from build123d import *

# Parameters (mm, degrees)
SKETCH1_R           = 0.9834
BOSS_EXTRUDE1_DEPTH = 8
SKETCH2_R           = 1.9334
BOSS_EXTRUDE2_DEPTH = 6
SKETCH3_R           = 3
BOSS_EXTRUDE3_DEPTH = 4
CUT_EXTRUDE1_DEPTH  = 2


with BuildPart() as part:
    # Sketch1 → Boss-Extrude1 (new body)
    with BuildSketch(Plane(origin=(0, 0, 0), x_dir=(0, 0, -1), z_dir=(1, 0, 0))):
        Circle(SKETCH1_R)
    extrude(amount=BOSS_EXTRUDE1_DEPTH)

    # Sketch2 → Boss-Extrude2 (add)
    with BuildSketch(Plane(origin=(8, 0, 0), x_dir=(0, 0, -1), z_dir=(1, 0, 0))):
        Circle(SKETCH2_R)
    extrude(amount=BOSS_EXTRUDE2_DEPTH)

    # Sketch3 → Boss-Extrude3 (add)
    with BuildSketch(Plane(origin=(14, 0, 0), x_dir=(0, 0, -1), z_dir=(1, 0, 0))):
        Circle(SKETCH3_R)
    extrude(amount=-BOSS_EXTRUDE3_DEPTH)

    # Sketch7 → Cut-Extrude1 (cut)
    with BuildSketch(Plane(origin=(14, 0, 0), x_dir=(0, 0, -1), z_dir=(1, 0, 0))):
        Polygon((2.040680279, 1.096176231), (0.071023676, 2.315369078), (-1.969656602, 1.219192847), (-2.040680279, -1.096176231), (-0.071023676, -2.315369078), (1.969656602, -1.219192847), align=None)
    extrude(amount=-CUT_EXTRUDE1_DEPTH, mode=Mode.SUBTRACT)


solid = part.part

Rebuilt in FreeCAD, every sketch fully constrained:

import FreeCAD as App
import Part
import Sketcher
from FreeCAD import Vector

doc = App.newDocument("Part")
body = doc.addObject("PartDesign::Body", "Body")

sketch1 = doc.addObject("Sketcher::SketchObject", "Sketch")
body.addObject(sketch1)
sketch1.AttachmentSupport = (doc.YZ_Plane, [""])
sketch1.MapMode = "FlatFace"
sketch1.addGeometry(Part.Circle(Vector(0, 0, 0), Vector(0, 0, 1), 0.9834), False)
sketch1.addConstraint(Sketcher.Constraint("Coincident", 0, 3, -1, 1))
sketch1.addConstraint(Sketcher.Constraint("Diameter", 0, 1.9668))
pad1 = doc.addObject("PartDesign::Pad", "Pad")
body.addObject(pad1)
pad1.Profile = sketch1
pad1.Length = 8

sketch2 = doc.addObject("Sketcher::SketchObject", "Sketch001")
body.addObject(sketch2)
sketch2.AttachmentSupport = (doc.YZ_Plane, [""])
sketch2.MapMode = "FlatFace"
sketch2.AttachmentOffset = App.Placement(Vector(0, 0, 8), App.Rotation())
sketch2.addGeometry(Part.Circle(Vector(0, 0, 0), Vector(0, 0, 1), 1.9334), False)
sketch2.addConstraint(Sketcher.Constraint("Coincident", 0, 3, -1, 1))
sketch2.addConstraint(Sketcher.Constraint("Diameter", 0, 3.8668))
pad2 = doc.addObject("PartDesign::Pad", "Pad001")
body.addObject(pad2)
pad2.Profile = sketch2
pad2.Length = 6

sketch3 = doc.addObject("Sketcher::SketchObject", "Sketch002")
body.addObject(sketch3)
sketch3.AttachmentSupport = (doc.YZ_Plane, [""])
sketch3.MapMode = "FlatFace"
sketch3.AttachmentOffset = App.Placement(Vector(0, 0, 14), App.Rotation())
sketch3.addGeometry(Part.Circle(Vector(0, 0, 0), Vector(0, 0, 1), 3), False)
sketch3.addConstraint(Sketcher.Constraint("Coincident", 0, 3, -1, 1))
sketch3.addConstraint(Sketcher.Constraint("Diameter", 0, 6.0))
pad3 = doc.addObject("PartDesign::Pad", "Pad002")
body.addObject(pad3)
pad3.Profile = sketch3
pad3.Length = 4
pad3.Reversed = True

sketch4 = doc.addObject("Sketcher::SketchObject", "Sketch003")
body.addObject(sketch4)
sketch4.AttachmentSupport = (doc.YZ_Plane, [""])
sketch4.MapMode = "FlatFace"
sketch4.AttachmentOffset = App.Placement(Vector(0, 0, 14), App.Rotation())
sketch4.addGeometry(Part.LineSegment(Vector(1.096176, -2.04068, 0), Vector(2.315369, -0.071024, 0)), False)
sketch4.addGeometry(Part.LineSegment(Vector(2.315369, -0.071024, 0), Vector(1.219193, 1.969657, 0)), False)
sketch4.addGeometry(Part.LineSegment(Vector(1.219193, 1.969657, 0), Vector(-1.096176, 2.04068, 0)), False)
sketch4.addGeometry(Part.LineSegment(Vector(-1.096176, 2.04068, 0), Vector(-2.315369, 0.071024, 0)), False)
sketch4.addGeometry(Part.LineSegment(Vector(-2.315369, 0.071024, 0), Vector(-1.219193, -1.969657, 0)), False)
sketch4.addGeometry(Part.LineSegment(Vector(-1.219193, -1.969657, 0), Vector(1.096176, -2.04068, 0)), False)
sketch4.addConstraint(Sketcher.Constraint("Coincident", 0, 2, 1, 1))
sketch4.addConstraint(Sketcher.Constraint("Coincident", 1, 2, 2, 1))
sketch4.addConstraint(Sketcher.Constraint("Coincident", 2, 2, 3, 1))
sketch4.addConstraint(Sketcher.Constraint("Coincident", 3, 2, 4, 1))
sketch4.addConstraint(Sketcher.Constraint("Coincident", 4, 2, 5, 1))
sketch4.addConstraint(Sketcher.Constraint("Coincident", 5, 2, 0, 1))
sketch4.addConstraint(Sketcher.Constraint("Symmetric", 0, 2, 3, 2, -1, 1))
sketch4.addConstraint(Sketcher.Constraint("Symmetric", 1, 2, 4, 2, -1, 1))
sketch4.addConstraint(Sketcher.Constraint("Symmetric", 2, 2, 5, 2, -1, 1))
sketch4.addConstraint(Sketcher.Constraint("Equal", 0, 1))
sketch4.addConstraint(Sketcher.Constraint("Equal", 1, 2))
sketch4.addConstraint(Sketcher.Constraint("Distance", 0, 2.316458))
sketch4.addConstraint(Sketcher.Constraint("DistanceX", -1, 1, 0, 2, 2.315369))
sketch4.addConstraint(Sketcher.Constraint("DistanceY", -1, 1, 2, 2, 2.04068))
sketch4.addConstraint(Sketcher.Constraint("DistanceY", 0, 2, 1, 2, 2.04068))
pocket1 = doc.addObject("PartDesign::Pocket", "Pocket")
body.addObject(pocket1)
pocket1.Profile = sketch4
pocket1.Length = 2

doc.recompute()
